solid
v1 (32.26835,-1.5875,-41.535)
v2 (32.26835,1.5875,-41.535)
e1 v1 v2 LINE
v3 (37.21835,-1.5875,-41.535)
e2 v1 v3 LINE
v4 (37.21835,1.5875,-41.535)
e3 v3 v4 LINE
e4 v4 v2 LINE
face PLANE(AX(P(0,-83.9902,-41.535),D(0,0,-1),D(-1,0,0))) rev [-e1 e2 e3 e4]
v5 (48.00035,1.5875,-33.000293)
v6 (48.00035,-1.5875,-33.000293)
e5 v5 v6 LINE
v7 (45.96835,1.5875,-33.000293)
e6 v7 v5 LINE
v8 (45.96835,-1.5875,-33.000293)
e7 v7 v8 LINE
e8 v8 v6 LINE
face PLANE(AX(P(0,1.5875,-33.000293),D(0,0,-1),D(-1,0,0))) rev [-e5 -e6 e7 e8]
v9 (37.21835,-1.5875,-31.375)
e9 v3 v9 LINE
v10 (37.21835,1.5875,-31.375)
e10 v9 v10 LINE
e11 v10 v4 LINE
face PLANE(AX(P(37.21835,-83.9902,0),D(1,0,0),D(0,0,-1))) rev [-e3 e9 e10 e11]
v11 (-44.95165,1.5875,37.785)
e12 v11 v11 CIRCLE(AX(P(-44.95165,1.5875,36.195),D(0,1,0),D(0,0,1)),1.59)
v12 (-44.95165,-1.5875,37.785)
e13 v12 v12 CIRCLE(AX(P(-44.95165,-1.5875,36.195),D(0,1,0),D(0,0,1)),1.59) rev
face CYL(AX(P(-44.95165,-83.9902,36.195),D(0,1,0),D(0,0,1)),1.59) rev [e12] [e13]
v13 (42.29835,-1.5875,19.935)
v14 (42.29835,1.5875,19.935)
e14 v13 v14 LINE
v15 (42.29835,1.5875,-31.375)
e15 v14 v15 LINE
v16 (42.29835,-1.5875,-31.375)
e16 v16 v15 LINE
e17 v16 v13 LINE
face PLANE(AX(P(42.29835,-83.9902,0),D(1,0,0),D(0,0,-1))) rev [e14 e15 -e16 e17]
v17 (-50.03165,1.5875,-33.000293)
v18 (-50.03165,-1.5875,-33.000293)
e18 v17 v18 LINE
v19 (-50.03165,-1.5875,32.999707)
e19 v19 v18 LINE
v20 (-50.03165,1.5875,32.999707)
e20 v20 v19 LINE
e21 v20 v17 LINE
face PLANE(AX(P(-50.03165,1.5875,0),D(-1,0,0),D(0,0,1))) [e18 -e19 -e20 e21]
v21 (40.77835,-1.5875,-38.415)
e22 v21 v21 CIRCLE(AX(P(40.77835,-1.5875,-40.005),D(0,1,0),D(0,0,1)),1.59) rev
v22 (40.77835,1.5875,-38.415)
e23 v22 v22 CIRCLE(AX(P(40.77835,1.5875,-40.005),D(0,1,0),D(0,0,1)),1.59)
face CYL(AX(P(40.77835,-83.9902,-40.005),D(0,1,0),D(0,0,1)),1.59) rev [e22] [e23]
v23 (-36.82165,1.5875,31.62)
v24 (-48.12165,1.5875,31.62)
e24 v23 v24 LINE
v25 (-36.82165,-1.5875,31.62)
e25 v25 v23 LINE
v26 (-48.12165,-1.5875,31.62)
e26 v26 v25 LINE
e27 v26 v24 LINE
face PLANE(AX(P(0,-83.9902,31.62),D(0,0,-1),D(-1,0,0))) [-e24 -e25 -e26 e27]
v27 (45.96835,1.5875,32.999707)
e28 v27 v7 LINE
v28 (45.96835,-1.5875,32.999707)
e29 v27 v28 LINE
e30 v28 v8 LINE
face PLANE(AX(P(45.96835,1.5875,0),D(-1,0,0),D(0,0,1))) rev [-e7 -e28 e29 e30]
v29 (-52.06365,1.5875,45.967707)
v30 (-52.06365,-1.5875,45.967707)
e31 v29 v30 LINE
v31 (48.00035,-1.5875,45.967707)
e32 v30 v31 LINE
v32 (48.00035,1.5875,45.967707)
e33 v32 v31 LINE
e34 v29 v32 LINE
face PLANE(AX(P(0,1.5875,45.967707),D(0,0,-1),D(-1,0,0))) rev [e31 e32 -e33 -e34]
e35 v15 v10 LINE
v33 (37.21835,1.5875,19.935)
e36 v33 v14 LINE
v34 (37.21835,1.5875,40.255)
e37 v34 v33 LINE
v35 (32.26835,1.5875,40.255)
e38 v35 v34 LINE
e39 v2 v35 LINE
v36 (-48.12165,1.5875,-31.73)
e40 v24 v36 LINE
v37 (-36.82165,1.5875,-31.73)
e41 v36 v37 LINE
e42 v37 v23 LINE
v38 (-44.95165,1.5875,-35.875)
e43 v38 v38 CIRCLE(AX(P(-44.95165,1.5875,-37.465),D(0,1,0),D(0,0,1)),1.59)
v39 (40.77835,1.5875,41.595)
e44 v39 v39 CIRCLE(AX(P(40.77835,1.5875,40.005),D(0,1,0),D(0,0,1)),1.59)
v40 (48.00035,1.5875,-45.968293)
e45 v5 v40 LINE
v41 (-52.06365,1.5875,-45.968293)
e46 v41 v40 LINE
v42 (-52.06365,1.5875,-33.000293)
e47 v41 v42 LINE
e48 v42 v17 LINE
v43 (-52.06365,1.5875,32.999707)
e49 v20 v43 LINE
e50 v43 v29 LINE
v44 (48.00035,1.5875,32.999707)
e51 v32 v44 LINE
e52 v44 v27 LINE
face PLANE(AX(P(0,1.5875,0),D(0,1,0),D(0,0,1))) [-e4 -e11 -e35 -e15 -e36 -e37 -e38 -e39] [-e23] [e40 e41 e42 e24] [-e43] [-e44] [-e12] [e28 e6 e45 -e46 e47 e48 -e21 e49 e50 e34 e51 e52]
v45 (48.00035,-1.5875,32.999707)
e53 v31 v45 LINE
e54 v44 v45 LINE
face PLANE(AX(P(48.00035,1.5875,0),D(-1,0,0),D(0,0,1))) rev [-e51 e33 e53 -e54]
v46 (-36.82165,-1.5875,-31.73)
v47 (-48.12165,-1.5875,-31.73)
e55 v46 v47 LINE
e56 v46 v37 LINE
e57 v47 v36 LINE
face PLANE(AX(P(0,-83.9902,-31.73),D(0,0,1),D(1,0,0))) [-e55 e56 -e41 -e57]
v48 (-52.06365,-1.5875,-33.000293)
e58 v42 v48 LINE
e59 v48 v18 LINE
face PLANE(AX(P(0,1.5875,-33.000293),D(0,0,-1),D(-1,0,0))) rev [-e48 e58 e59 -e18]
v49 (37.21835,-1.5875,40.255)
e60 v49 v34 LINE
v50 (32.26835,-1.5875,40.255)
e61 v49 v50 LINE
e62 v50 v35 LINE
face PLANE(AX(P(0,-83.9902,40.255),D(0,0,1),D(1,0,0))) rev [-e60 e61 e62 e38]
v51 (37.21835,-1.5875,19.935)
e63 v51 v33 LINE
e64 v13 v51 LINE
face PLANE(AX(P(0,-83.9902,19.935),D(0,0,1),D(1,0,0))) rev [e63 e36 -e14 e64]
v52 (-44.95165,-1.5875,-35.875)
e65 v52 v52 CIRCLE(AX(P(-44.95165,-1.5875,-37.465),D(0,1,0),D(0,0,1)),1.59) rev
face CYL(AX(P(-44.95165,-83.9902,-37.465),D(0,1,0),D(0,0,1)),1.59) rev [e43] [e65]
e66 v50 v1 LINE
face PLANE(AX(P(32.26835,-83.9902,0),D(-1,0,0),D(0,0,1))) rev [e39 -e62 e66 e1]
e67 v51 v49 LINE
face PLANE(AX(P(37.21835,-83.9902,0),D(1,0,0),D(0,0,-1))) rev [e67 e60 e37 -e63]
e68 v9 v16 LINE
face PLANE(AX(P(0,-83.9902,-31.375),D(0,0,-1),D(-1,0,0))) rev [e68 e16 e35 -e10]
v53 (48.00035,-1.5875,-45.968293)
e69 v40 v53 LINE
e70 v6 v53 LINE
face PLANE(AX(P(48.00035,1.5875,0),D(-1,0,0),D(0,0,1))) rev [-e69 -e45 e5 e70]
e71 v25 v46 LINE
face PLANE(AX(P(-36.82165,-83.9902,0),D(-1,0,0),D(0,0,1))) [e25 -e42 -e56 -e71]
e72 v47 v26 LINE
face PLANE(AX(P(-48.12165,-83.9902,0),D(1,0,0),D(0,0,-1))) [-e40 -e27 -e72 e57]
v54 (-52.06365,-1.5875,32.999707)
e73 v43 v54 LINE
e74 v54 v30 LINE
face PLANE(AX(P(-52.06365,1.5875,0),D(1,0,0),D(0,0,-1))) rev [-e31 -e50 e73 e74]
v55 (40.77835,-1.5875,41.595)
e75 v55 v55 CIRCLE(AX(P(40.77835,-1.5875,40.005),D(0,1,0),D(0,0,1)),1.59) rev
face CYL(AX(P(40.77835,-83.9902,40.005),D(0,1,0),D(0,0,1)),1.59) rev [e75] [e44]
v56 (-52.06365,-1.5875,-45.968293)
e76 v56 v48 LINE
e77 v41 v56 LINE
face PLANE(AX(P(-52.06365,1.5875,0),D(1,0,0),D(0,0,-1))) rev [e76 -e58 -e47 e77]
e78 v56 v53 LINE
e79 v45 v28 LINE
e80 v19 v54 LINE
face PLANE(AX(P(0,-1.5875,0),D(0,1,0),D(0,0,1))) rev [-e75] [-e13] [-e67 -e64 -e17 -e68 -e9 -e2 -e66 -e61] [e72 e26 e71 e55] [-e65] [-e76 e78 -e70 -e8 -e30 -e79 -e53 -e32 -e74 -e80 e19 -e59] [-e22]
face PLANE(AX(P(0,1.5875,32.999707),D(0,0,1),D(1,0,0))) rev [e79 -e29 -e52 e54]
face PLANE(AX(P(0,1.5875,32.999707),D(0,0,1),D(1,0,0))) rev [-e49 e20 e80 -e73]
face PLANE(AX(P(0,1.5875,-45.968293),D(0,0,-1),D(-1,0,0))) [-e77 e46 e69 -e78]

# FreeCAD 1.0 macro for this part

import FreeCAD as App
import Part
import Sketcher

V = App.Vector
Q = App.Units.Quantity


def add_polygon(sketch, points):
    """Adds a closed chain of lines whose ends are joined by coincident constraints."""
    first, n = sketch.GeometryCount, len(points)
    for a, b in zip(points, points[1:] + points[:1]):
        sketch.addGeometry(Part.LineSegment(App.Vector(*a, 0), App.Vector(*b, 0)), False)
    for i in range(n):
        sketch.addConstraint(Sketcher.Constraint("Coincident", first + i, 2, first + (i + 1) % n, 1))

doc = App.newDocument("Part")
body = doc.addObject("PartDesign::Body", "Body")

# Sketch on XZ plane
sketch1 = doc.addObject("Sketcher::SketchObject", "Sketch")
body.addObject(sketch1)
sketch1.AttachmentSupport = (doc.XZ_Plane, [""])
sketch1.MapMode = "FlatFace"
add_polygon(sketch1, [(-50, 33), (-52.1, 33), (-52.1, 46), (48, 46), (48, 33), (46, 33), (46, -33), (48, -33), (48, -46), (-52.1, -46), (-52.1, -33), (-50, -33)])  # lines 0-11
sketch1.addConstraint([
    Sketcher.Constraint("Horizontal", 0),
    Sketcher.Constraint("Vertical", 1),
    Sketcher.Constraint("Horizontal", 2),
    Sketcher.Constraint("Vertical", 3),
    Sketcher.Constraint("Horizontal", 4),
    Sketcher.Constraint("Vertical", 5),
    Sketcher.Constraint("Horizontal", 6),
    Sketcher.Constraint("Vertical", 7),
    Sketcher.Constraint("Horizontal", 8),
    Sketcher.Constraint("Vertical", 9),
    Sketcher.Constraint("Horizontal", 10),
    Sketcher.Constraint("Vertical", 11),
    Sketcher.Constraint("Horizontal", 0, 2, 3, 2),
    Sketcher.Constraint("Horizontal", 6, 2, 9, 2),
    Sketcher.Constraint("Vertical", 3, 2, 6, 2),
    Sketcher.Constraint("Vertical", 1, 2, 8, 2),
    Sketcher.Constraint("Equal", 0, 4),
    Sketcher.Constraint("Equal", 3, 7),
    Sketcher.Constraint("DistanceX", 0, 2, 0, 1, Q("0.08 in")),
    Sketcher.Constraint("DistanceX", 2, 1, 2, 2, 100.064),
    Sketcher.Constraint("DistanceY", 1, 1, 1, 2, 12.968),
    Sketcher.Constraint("DistanceY", 5, 2, 5, 1, 66.0),
    Sketcher.Constraint("DistanceX", 0, 2, -1, 1, 52.06365),
    Sketcher.Constraint("DistanceY", -1, 1, 0, 2, 32.999707),
])
pad1 = doc.addObject("PartDesign::Pad", "Pad")
body.addObject(pad1)
pad1.Profile = sketch1
pad1.Length = Q("0.125 in")
pad1.Midplane = True

# Sketch on XZ plane
sketch2 = doc.addObject("Sketcher::SketchObject", "Sketch001")
body.addObject(sketch2)
sketch2.AttachmentSupport = (doc.XZ_Plane, [""])
sketch2.MapMode = "FlatFace"
sketch2.AttachmentOffset = App.Placement(V(0, 0, -0.0625 * 25.4), App.Rotation())
add_polygon(sketch2, [(-48.1, -31.7), (-48.1, 31.6), (-36.8, 31.6), (-36.8, -31.7)])  # lines 0-3
sketch2.addGeometry(Part.Circle(V(-45, -37.5, 0), V(0, 0, 1), 1.6), False)  # 4
add_polygon(sketch2, [(32.3, 40.3), (37.2, 40.3), (37.2, 19.9), (42.3, 19.9), (42.3, -31.4), (37.2, -31.4), (37.2, -41.5), (32.3, -41.5)])  # lines 5-12
sketch2.addGeometry(Part.Circle(V(40.8, 40, 0), V(0, 0, 1), 1.6), False)  # 13
sketch2.addGeometry(Part.Circle(V(40.8, -40, 0), V(0, 0, 1), 1.6), False)  # 14
sketch2.addGeometry(Part.Circle(V(-45, 36.2, 0), V(0, 0, 1), 1.6), False)  # 15
sketch2.addConstraint([
    Sketcher.Constraint("Vertical", 0),
    Sketcher.Constraint("Horizontal", 1),
    Sketcher.Constraint("Vertical", 2),
    Sketcher.Constraint("Horizontal", 3),
    Sketcher.Constraint("Horizontal", 5),
    Sketcher.Constraint("Vertical", 6),
    Sketcher.Constraint("Horizontal", 7),
    Sketcher.Constraint("Vertical", 8),
    Sketcher.Constraint("Horizontal", 9),
    Sketcher.Constraint("Vertical", 10),
    Sketcher.Constraint("Horizontal", 11),
    Sketcher.Constraint("Vertical", 12),
    Sketcher.Constraint("Equal", 4, 13),
    Sketcher.Constraint("Equal", 13, 14),
    Sketcher.Constraint("Equal", 14, 15),
    Sketcher.Constraint("Symmetric", 13, 3, 14, 3, -1),
    Sketcher.Constraint("Vertical", 4, 3, 15, 3),
    Sketcher.Constraint("Vertical", 6, 2, 9, 2),
    Sketcher.Constraint("DistanceX", 7, 1, 7, 2, Q("0.2 in")),
    Sketcher.Constraint("DistanceY", 6, 2, 6, 1, Q("0.8 in")),
    Sketcher.Constraint("DistanceY", 10, 2, 10, 1, Q("0.4 in")),
    Sketcher.Constraint("DistanceY", 14, 3, 15, 3, Q("3 in")),
    Sketcher.Constraint("DistanceY", 14, 3, 4, 3, Q("0.1 in")),
    Sketcher.Constraint("DistanceX", 0, 2, 13, 3, Q("3.5 in")),
    Sketcher.Constraint("Diameter", 4, 3.18),
    Sketcher.Constraint("DistanceY", 4, 3, 13, 3, Q("3.05 in")),
    Sketcher.Constraint("DistanceX", 1, 1, 1, 2, 11.3),
    Sketcher.Constraint("DistanceX", 5, 1, 5, 2, 4.95),
    Sketcher.Constraint("DistanceY", 0, 1, 0, 2, 63.35),
    Sketcher.Constraint("DistanceY", 8, 2, 8, 1, 51.31),
    Sketcher.Constraint("DistanceY", -1, 1, 0, 2, 31.62),
    Sketcher.Constraint("DistanceY", -1, 1, 5, 2, 40.255),
    Sketcher.Constraint("DistanceX", 4, 3, 13, 3, 85.73),
    Sketcher.Constraint("DistanceX", 5, 2, 13, 3, 3.56),
    Sketcher.Constraint("DistanceX", 4, 3, -1, 1, 44.95165),
])
pocket1 = doc.addObject("PartDesign::Pocket", "Pocket")
body.addObject(pocket1)
pocket1.Profile = sketch2
pocket1.Length = Q("0.125 in")
pocket1.Reversed = True

doc.recompute()
